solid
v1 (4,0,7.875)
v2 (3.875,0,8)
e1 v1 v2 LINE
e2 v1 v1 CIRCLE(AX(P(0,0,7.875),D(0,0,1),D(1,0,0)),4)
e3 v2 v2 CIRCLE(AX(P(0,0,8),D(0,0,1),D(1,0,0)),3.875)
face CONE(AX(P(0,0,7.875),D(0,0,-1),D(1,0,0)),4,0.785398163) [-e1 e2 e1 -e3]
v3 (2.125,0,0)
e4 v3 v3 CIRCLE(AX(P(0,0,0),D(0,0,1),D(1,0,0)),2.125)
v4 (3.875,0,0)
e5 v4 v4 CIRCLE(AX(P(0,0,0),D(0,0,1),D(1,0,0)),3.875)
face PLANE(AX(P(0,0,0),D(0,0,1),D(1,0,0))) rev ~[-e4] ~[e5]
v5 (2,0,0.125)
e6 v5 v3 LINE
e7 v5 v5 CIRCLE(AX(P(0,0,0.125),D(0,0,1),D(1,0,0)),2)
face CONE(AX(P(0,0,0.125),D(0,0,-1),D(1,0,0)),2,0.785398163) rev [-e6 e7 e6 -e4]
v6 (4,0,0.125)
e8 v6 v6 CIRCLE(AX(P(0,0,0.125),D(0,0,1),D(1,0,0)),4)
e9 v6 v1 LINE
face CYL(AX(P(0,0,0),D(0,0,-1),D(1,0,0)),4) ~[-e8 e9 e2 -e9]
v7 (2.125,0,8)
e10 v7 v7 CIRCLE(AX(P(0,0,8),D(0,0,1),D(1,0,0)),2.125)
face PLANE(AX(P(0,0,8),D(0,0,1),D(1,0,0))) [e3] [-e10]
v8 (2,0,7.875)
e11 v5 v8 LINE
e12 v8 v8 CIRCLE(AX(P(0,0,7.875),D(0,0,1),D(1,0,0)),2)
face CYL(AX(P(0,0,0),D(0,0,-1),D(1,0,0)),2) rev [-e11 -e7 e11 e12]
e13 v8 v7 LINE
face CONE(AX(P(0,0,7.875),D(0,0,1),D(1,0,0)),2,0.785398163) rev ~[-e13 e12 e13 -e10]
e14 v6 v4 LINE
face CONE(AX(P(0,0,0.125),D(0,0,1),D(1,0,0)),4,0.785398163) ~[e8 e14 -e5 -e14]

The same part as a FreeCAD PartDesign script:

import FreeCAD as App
import Part
import Sketcher
from FreeCAD import Vector


def edges_at(feature, points):
    """Names of the edges that pass closest to the given points."""
    edges = feature.Shape.Edges
    near = lambda p: min(range(len(edges)), key=lambda i: edges[i].distToShape(Part.Vertex(*p))[0])
    return sorted({f"Edge{near(p) + 1}" for p in points})

doc = App.newDocument("Part")
body = doc.addObject("PartDesign::Body", "Body")

# Sketch on XY plane
sketch1 = body.newObject("Sketcher::SketchObject", "Sketch")
sketch1.AttachmentSupport = (doc.getObject("XY_Plane"), [""])
sketch1.MapMode = "FlatFace"
sketch1.addGeometry([
    Part.Circle(Vector(0, 0, 0), Vector(0, 0, 1), 4),
    Part.Circle(Vector(0, 0, 0), Vector(0, 0, 1), 2),
], False)
sketch1.addConstraint([
    Sketcher.Constraint("Coincident", 0, 3, -1, 1),
    Sketcher.Constraint("Coincident", 1, 3, -1, 1),
    Sketcher.Constraint("Diameter", 0, 8.0),
    Sketcher.Constraint("Diameter", 1, 4.0),
])
pad1 = body.newObject("PartDesign::Pad", "Pad")
pad1.Profile = sketch1
pad1.Length = 8
doc.recompute()

chamfer = body.newObject("PartDesign::Chamfer", "Chamfer")
chamfer.Base = (pad1, edges_at(pad1, [
    (-4, 0, 8),
    (-2, 0, 8),
    (-4, 0, 0),
    (-2, 0, 0),
]))
chamfer.Size = 0.125

doc.recompute()
